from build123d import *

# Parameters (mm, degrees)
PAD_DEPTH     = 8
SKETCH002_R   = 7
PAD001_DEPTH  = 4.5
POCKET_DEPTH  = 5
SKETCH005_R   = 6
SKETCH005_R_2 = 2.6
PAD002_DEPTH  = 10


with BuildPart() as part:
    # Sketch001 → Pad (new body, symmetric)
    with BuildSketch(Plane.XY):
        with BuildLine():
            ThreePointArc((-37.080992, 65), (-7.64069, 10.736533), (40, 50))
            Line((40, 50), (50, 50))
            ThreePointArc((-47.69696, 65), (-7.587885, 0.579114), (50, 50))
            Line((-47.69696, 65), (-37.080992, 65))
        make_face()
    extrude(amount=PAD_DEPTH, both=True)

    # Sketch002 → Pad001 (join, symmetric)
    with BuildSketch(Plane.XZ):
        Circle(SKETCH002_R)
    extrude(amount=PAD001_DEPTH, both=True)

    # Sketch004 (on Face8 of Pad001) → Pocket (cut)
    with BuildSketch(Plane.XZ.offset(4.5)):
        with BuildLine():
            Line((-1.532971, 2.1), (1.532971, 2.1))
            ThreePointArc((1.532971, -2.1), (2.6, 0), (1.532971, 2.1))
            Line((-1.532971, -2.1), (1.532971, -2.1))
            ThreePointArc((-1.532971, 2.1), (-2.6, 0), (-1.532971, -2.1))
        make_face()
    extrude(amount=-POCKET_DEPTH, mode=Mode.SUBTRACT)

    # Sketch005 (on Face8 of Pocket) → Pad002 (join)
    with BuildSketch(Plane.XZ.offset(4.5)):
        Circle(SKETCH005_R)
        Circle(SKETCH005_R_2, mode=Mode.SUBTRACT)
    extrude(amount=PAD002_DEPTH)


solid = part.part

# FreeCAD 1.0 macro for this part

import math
import FreeCAD as App
import Part
import Sketcher
from FreeCAD import Vector

doc = App.newDocument("Part")
body = doc.addObject("PartDesign::Body", "Body")

sketch1 = body.newObject("Sketcher::SketchObject", "Sketch")
sketch1.AttachmentSupport = (doc.getObject("XY_Plane"), [""])
sketch1.MapMode = "FlatFace"
sketch1.addGeometry(Part.ArcOfCircle(Part.Circle(Vector(0, 50, 0), Vector(0, 0, 1), 40), math.radians(157.975687), math.radians(360)), False)
sketch1.addGeometry(Part.LineSegment(Vector(-37.080992, 65, 0), Vector(-47.69696, 65, 0)), False)
sketch1.addGeometry(Part.ArcOfCircle(Part.Circle(Vector(0, 50, 0), Vector(0, 0, 1), 50), math.radians(162.542397), math.radians(360)), False)
sketch1.addGeometry(Part.LineSegment(Vector(50, 50, 0), Vector(40, 50, 0)), False)
sketch1.addConstraint(Sketcher.Constraint("Coincident", 0, 1, 1, 1))
sketch1.addConstraint(Sketcher.Constraint("Coincident", 1, 2, 2, 1))
sketch1.addConstraint(Sketcher.Constraint("Coincident", 2, 2, 3, 1))
sketch1.addConstraint(Sketcher.Constraint("Coincident", 3, 2, 0, 2))
sketch1.addConstraint(Sketcher.Constraint("Horizontal", 1))
sketch1.addConstraint(Sketcher.Constraint("Horizontal", 3))
sketch1.addConstraint(Sketcher.Constraint("Coincident", 2, 3, 0, 3))
sketch1.addConstraint(Sketcher.Constraint("PointOnObject", 0, 3, -2))
sketch1.addConstraint(Sketcher.Constraint("Horizontal", 0, 3, 2, 2))
sketch1.addConstraint(Sketcher.Constraint("Radius", 0, 40.0))
sketch1.addConstraint(Sketcher.Constraint("Radius", 2, 50.0))
sketch1.addConstraint(Sketcher.Constraint("DistanceY", -1, 1, 0, 3, 50.0))
sketch1.addConstraint(Sketcher.Constraint("DistanceY", -1, 1, 0, 1, 65.0))
pad1 = body.newObject("PartDesign::Pad", "Pad")
pad1.Profile = sketch1
pad1.Length = 16
pad1.Midplane = True

sketch2 = body.newObject("Sketcher::SketchObject", "Sketch001")
sketch2.AttachmentSupport = (doc.getObject("XZ_Plane"), [""])
sketch2.MapMode = "FlatFace"
sketch2.addGeometry(Part.Circle(Vector(0, 0, 0), Vector(0, 0, 1), 7), False)
sketch2.addConstraint(Sketcher.Constraint("Coincident", 0, 3, -1, 1))
sketch2.addConstraint(Sketcher.Constraint("Diameter", 0, 14.0))
pad2 = body.newObject("PartDesign::Pad", "Pad001")
pad2.Profile = sketch2
pad2.Length = 9
pad2.Midplane = True

sketch3 = body.newObject("Sketcher::SketchObject", "Sketch002")
sketch3.AttachmentSupport = (doc.getObject("XZ_Plane"), [""])
sketch3.MapMode = "FlatFace"
sketch3.AttachmentOffset = App.Placement(Vector(0, 0, 4.5), App.Rotation())
sketch3.addGeometry(Part.LineSegment(Vector(1.532971, 2.1, 0), Vector(-1.532971, 2.1, 0)), False)
sketch3.addGeometry(Part.ArcOfCircle(Part.Circle(Vector(0, 0, 0), Vector(0, 0, 1), 2.6), math.radians(126.128929), math.radians(233.871071)), False)
sketch3.addGeometry(Part.LineSegment(Vector(-1.532971, -2.1, 0), Vector(1.532971, -2.1, 0)), False)
sketch3.addGeometry(Part.ArcOfCircle(Part.Circle(Vector(0, 0, 0), Vector(0, 0, 1), 2.6), math.radians(-53.871071), math.radians(53.871071)), False)
sketch3.addConstraint(Sketcher.Constraint("Coincident", 0, 2, 1, 1))
sketch3.addConstraint(Sketcher.Constraint("Coincident", 1, 2, 2, 1))
sketch3.addConstraint(Sketcher.Constraint("Coincident", 2, 2, 3, 1))
sketch3.addConstraint(Sketcher.Constraint("Coincident", 3, 2, 0, 1))
sketch3.addConstraint(Sketcher.Constraint("Horizontal", 0))
sketch3.addConstraint(Sketcher.Constraint("Horizontal", 2))
sketch3.addConstraint(Sketcher.Constraint("Coincident", 1, 3, -1, 1))
sketch3.addConstraint(Sketcher.Constraint("Coincident", 3, 3, -1, 1))
sketch3.addConstraint(Sketcher.Constraint("Equal", 1, 3))
sketch3.addConstraint(Sketcher.Constraint("Vertical", 0, 2, 1, 2))
sketch3.addConstraint(Sketcher.Constraint("Radius", 1, 2.6))
sketch3.addConstraint(Sketcher.Constraint("DistanceY", -1, 1, 0, 2, 2.1))
pocket1 = body.newObject("PartDesign::Pocket", "Pocket")
pocket1.Profile = sketch3
pocket1.Length = 5

sketch4 = body.newObject("Sketcher::SketchObject", "Sketch003")
sketch4.AttachmentSupport = (doc.getObject("XZ_Plane"), [""])
sketch4.MapMode = "FlatFace"
sketch4.AttachmentOffset = App.Placement(Vector(0, 0, 4.5), App.Rotation())
sketch4.addGeometry(Part.Circle(Vector(0, 0, 0), Vector(0, 0, 1), 6), False)
sketch4.addGeometry(Part.Circle(Vector(0, 0, 0), Vector(0, 0, 1), 2.6), False)
sketch4.addConstraint(Sketcher.Constraint("Coincident", 0, 3, -1, 1))
sketch4.addConstraint(Sketcher.Constraint("Coincident", 1, 3, -1, 1))
sketch4.addConstraint(Sketcher.Constraint("Diameter", 0, 12.0))
sketch4.addConstraint(Sketcher.Constraint("Diameter", 1, 5.2))
pad3 = body.newObject("PartDesign::Pad", "Pad002")
pad3.Profile = sketch4
pad3.Length = 10

doc.recompute()
